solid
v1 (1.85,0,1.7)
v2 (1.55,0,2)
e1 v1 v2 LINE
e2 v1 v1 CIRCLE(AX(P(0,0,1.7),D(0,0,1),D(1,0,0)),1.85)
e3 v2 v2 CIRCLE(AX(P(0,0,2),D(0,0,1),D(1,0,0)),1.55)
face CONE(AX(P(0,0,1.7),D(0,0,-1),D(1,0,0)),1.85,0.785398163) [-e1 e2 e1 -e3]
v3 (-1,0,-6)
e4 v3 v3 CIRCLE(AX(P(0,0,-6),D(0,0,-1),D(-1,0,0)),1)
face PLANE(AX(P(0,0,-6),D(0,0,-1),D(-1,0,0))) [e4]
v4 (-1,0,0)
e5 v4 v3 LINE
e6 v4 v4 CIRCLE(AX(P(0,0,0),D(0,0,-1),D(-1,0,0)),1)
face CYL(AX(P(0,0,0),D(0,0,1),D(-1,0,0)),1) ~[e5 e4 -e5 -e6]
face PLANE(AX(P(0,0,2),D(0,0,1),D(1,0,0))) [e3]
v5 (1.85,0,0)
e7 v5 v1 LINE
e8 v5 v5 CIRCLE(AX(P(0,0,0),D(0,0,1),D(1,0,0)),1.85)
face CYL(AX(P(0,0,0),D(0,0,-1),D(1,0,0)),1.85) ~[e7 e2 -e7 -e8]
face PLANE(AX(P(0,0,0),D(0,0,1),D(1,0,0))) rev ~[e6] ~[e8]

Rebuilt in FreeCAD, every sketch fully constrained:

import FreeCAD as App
import Part
import Sketcher

V = App.Vector


def edges_at(feature, points):
    """Names of the edges that pass closest to the given points."""
    edges = feature.Shape.Edges
    near = lambda p: min(range(len(edges)), key=lambda i: edges[i].distToShape(Part.Vertex(*p))[0])
    return sorted({f"Edge{near(p) + 1}" for p in points})

doc = App.newDocument("Part")
body = doc.addObject("PartDesign::Body", "Body")

sketch1 = body.newObject("Sketcher::SketchObject", "Sketch")
sketch1.AttachmentSupport = (doc.getObject("XY_Plane"), [""])
sketch1.MapMode = "FlatFace"
sketch1.addGeometry(Part.Circle(V(0, 0, 0), V(0, 0, 1), 1.9), False)
sketch1.addConstraint([
    Sketcher.Constraint("Coincident", 0, 3, -1, 1),
    Sketcher.Constraint("Diameter", 0, 3.7),
])
pad1 = body.newObject("PartDesign::Pad", "Pad")
pad1.Profile = sketch1
pad1.Length = 2

sketch2 = body.newObject("Sketcher::SketchObject", "Sketch001")
sketch2.AttachmentSupport = (doc.getObject("XY_Plane"), [""])
sketch2.MapMode = "FlatFace"
sketch2.addGeometry(Part.Circle(V(0, 0, 0), V(0, 0, 1), 1), False)
sketch2.addConstraint([
    Sketcher.Constraint("Coincident", 0, 3, -1, 1),
    Sketcher.Constraint("Diameter", 0, 2.0),
])
pad2 = body.newObject("PartDesign::Pad", "Pad001")
pad2.Profile = sketch2
pad2.Length = 6
pad2.Reversed = True
doc.recompute()

chamfer = body.newObject("PartDesign::Chamfer", "Chamfer")
chamfer.Base = (pad2, edges_at(pad2, [(-1.85, 0, 2)]))
chamfer.Size = 0.3

doc.recompute()
